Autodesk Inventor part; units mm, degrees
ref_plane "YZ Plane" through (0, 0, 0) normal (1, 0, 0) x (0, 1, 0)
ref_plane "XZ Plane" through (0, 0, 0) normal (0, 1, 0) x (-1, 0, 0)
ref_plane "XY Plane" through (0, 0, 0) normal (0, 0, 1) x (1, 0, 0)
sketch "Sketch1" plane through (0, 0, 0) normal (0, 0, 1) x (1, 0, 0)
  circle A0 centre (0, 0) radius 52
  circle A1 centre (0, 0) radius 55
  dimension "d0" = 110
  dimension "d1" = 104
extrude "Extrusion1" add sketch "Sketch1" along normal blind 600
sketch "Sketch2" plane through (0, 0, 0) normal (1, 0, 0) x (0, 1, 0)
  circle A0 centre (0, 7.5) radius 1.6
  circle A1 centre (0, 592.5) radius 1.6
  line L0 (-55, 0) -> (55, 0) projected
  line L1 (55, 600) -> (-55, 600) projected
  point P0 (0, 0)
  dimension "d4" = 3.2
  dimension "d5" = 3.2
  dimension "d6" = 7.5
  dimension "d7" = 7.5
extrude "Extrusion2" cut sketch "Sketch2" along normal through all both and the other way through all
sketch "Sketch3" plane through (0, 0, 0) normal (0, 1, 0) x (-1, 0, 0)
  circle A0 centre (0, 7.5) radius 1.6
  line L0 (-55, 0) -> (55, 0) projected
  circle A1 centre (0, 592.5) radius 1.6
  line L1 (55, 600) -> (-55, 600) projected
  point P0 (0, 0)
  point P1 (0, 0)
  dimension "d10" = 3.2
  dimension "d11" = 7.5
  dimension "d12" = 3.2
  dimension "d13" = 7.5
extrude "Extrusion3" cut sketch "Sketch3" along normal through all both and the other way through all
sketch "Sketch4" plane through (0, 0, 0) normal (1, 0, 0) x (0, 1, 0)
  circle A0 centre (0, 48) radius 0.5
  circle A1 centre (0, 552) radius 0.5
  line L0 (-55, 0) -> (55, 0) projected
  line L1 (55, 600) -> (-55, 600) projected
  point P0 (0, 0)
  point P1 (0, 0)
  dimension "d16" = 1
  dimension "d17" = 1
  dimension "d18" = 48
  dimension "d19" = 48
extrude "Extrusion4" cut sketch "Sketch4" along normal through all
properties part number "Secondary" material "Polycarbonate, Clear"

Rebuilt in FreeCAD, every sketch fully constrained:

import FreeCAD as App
import Part
import Sketcher

doc = App.newDocument("Part")
body = doc.addObject("PartDesign::Body", "Body")

# Sketch on XY plane
sketch1 = body.newObject("Sketcher::SketchObject", "Sketch")
sketch1.AttachmentSupport = (doc.getObject("XY_Plane"), [""])
sketch1.MapMode = "FlatFace"
sketch1.addGeometry([
    Part.Circle(App.Vector(0, 0, 0), App.Vector(0, 0, 1), 55),
    Part.Circle(App.Vector(0, 0, 0), App.Vector(0, 0, 1), 52),
], False)
sketch1.addConstraint([
    Sketcher.Constraint("Coincident", 0, 3, -1, 1),
    Sketcher.Constraint("Coincident", 1, 3, -1, 1),
    Sketcher.Constraint("Diameter", 0, 110.0),
    Sketcher.Constraint("Diameter", 1, 104.0),
])
pad1 = body.newObject("PartDesign::Pad", "Pad")
pad1.Profile = sketch1
pad1.Length = 600

# Sketch on YZ plane
sketch2 = body.newObject("Sketcher::SketchObject", "Sketch001")
sketch2.AttachmentSupport = (doc.getObject("YZ_Plane"), [""])
sketch2.MapMode = "FlatFace"
sketch2.addGeometry([
    Part.Circle(App.Vector(0, 7.5, 0), App.Vector(0, 0, 1), 1.6),
    Part.Circle(App.Vector(0, 592.5, 0), App.Vector(0, 0, 1), 1.6),
], False)
sketch2.addConstraint([
    Sketcher.Constraint("Equal", 0, 1),
    Sketcher.Constraint("PointOnObject", 0, 3, -2),
    Sketcher.Constraint("PointOnObject", 1, 3, -2),
    Sketcher.Constraint("Diameter", 0, 3.2),
    Sketcher.Constraint("DistanceY", -1, 1, 0, 3, 7.5),
    Sketcher.Constraint("DistanceY", 0, 3, 1, 3, 585.0),
])
pocket1 = body.newObject("PartDesign::Pocket", "Pocket")
pocket1.Profile = sketch2
pocket1.Type = "ThroughAll"
pocket1.Midplane = True

# Sketch on XZ plane
sketch3 = body.newObject("Sketcher::SketchObject", "Sketch002")
sketch3.AttachmentSupport = (doc.getObject("XZ_Plane"), [""])
sketch3.MapMode = "FlatFace"
sketch3.addGeometry([
    Part.Circle(App.Vector(0, 7.5, 0), App.Vector(0, 0, 1), 1.6),
    Part.Circle(App.Vector(0, 592.5, 0), App.Vector(0, 0, 1), 1.6),
], False)
sketch3.addConstraint([
    Sketcher.Constraint("Equal", 0, 1),
    Sketcher.Constraint("PointOnObject", 0, 3, -2),
    Sketcher.Constraint("PointOnObject", 1, 3, -2),
    Sketcher.Constraint("Diameter", 0, 3.2),
    Sketcher.Constraint("DistanceY", -1, 1, 0, 3, 7.5),
    Sketcher.Constraint("DistanceY", 0, 3, 1, 3, 585.0),
])
pocket2 = body.newObject("PartDesign::Pocket", "Pocket001")
pocket2.Profile = sketch3
pocket2.Type = "ThroughAll"
pocket2.Midplane = True

# Sketch on YZ plane
sketch4 = body.newObject("Sketcher::SketchObject", "Sketch003")
sketch4.AttachmentSupport = (doc.getObject("YZ_Plane"), [""])
sketch4.MapMode = "FlatFace"
sketch4.addGeometry([
    Part.Circle(App.Vector(0, 48, 0), App.Vector(0, 0, 1), 0.5),
    Part.Circle(App.Vector(0, 552, 0), App.Vector(0, 0, 1), 0.5),
], False)
sketch4.addConstraint([
    Sketcher.Constraint("Equal", 0, 1),
    Sketcher.Constraint("PointOnObject", 0, 3, -2),
    Sketcher.Constraint("PointOnObject", 1, 3, -2),
    Sketcher.Constraint("Diameter", 0, 1.0),
    Sketcher.Constraint("DistanceY", -1, 1, 0, 3, 48.0),
    Sketcher.Constraint("DistanceY", -1, 1, 1, 3, 552.0),
])
pocket3 = body.newObject("PartDesign::Pocket", "Pocket002")
pocket3.Profile = sketch4
pocket3.Type = "ThroughAll"
pocket3.Reversed = True

doc.recompute()
